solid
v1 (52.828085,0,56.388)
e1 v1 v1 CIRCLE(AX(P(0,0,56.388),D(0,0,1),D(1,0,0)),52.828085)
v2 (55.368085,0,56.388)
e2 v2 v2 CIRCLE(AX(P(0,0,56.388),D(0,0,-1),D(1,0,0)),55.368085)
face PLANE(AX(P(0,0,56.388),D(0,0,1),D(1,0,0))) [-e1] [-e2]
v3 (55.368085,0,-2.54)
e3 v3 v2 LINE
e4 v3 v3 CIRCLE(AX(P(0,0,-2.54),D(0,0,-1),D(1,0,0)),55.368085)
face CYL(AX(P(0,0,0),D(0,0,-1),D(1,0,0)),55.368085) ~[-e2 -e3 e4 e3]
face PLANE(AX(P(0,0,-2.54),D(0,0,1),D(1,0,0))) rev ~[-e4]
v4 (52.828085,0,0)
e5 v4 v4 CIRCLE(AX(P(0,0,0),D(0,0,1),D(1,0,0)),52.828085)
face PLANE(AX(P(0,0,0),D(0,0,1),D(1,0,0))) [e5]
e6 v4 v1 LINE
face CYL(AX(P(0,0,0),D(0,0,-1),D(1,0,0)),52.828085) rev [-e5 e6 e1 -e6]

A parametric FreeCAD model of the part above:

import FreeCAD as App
import Part
import Sketcher


def faces_at(feature, points):
    """Names of the faces that lie closest to the given points."""
    faces = feature.Shape.Faces
    near = lambda p: min(range(len(faces)), key=lambda i: faces[i].distToShape(Part.Vertex(*p))[0])
    return sorted({f"Face{near(p) + 1}" for p in points})

doc = App.newDocument("Part")
params = doc.addObject("Spreadsheet::Sheet", "Params")
for row, (alias, value) in enumerate([
    ("pad1_length", "2.22 in"),
    ("thickness_wall", "0.1 in"),
], start=1):
    params.set(f"A{row}", alias)
    params.set(f"B{row}", "=" + value)
    params.setAlias(f"B{row}", alias)

body = doc.addObject("PartDesign::Body", "Body")

# Sketch on XY plane
sketch1 = body.newObject("Sketcher::SketchObject", "Sketch")
sketch1.AttachmentSupport = (doc.getObject("XY_Plane"), [""])
sketch1.MapMode = "FlatFace"
sketch1.addGeometry(Part.Circle(App.Vector(0, 0, 0), App.Vector(0, 0, 1), 53), False)
sketch1.addConstraint([
    Sketcher.Constraint("Coincident", 0, 3, -1, 1),
    Sketcher.Constraint("Diameter", 0, 105.65617),
])
pad1 = body.newObject("PartDesign::Pad", "Pad")
pad1.Profile = sketch1
pad1.setExpression("Length", "Params.pad1_length")
doc.recompute()

thickness = body.newObject("PartDesign::Thickness", "Thickness")
thickness.Base = (pad1, faces_at(pad1, [(0, 0, 56.388)]))
thickness.setExpression("Value", "Params.thickness_wall")
thickness.Reversed = False
thickness.Join = "Intersection"

doc.recompute()
